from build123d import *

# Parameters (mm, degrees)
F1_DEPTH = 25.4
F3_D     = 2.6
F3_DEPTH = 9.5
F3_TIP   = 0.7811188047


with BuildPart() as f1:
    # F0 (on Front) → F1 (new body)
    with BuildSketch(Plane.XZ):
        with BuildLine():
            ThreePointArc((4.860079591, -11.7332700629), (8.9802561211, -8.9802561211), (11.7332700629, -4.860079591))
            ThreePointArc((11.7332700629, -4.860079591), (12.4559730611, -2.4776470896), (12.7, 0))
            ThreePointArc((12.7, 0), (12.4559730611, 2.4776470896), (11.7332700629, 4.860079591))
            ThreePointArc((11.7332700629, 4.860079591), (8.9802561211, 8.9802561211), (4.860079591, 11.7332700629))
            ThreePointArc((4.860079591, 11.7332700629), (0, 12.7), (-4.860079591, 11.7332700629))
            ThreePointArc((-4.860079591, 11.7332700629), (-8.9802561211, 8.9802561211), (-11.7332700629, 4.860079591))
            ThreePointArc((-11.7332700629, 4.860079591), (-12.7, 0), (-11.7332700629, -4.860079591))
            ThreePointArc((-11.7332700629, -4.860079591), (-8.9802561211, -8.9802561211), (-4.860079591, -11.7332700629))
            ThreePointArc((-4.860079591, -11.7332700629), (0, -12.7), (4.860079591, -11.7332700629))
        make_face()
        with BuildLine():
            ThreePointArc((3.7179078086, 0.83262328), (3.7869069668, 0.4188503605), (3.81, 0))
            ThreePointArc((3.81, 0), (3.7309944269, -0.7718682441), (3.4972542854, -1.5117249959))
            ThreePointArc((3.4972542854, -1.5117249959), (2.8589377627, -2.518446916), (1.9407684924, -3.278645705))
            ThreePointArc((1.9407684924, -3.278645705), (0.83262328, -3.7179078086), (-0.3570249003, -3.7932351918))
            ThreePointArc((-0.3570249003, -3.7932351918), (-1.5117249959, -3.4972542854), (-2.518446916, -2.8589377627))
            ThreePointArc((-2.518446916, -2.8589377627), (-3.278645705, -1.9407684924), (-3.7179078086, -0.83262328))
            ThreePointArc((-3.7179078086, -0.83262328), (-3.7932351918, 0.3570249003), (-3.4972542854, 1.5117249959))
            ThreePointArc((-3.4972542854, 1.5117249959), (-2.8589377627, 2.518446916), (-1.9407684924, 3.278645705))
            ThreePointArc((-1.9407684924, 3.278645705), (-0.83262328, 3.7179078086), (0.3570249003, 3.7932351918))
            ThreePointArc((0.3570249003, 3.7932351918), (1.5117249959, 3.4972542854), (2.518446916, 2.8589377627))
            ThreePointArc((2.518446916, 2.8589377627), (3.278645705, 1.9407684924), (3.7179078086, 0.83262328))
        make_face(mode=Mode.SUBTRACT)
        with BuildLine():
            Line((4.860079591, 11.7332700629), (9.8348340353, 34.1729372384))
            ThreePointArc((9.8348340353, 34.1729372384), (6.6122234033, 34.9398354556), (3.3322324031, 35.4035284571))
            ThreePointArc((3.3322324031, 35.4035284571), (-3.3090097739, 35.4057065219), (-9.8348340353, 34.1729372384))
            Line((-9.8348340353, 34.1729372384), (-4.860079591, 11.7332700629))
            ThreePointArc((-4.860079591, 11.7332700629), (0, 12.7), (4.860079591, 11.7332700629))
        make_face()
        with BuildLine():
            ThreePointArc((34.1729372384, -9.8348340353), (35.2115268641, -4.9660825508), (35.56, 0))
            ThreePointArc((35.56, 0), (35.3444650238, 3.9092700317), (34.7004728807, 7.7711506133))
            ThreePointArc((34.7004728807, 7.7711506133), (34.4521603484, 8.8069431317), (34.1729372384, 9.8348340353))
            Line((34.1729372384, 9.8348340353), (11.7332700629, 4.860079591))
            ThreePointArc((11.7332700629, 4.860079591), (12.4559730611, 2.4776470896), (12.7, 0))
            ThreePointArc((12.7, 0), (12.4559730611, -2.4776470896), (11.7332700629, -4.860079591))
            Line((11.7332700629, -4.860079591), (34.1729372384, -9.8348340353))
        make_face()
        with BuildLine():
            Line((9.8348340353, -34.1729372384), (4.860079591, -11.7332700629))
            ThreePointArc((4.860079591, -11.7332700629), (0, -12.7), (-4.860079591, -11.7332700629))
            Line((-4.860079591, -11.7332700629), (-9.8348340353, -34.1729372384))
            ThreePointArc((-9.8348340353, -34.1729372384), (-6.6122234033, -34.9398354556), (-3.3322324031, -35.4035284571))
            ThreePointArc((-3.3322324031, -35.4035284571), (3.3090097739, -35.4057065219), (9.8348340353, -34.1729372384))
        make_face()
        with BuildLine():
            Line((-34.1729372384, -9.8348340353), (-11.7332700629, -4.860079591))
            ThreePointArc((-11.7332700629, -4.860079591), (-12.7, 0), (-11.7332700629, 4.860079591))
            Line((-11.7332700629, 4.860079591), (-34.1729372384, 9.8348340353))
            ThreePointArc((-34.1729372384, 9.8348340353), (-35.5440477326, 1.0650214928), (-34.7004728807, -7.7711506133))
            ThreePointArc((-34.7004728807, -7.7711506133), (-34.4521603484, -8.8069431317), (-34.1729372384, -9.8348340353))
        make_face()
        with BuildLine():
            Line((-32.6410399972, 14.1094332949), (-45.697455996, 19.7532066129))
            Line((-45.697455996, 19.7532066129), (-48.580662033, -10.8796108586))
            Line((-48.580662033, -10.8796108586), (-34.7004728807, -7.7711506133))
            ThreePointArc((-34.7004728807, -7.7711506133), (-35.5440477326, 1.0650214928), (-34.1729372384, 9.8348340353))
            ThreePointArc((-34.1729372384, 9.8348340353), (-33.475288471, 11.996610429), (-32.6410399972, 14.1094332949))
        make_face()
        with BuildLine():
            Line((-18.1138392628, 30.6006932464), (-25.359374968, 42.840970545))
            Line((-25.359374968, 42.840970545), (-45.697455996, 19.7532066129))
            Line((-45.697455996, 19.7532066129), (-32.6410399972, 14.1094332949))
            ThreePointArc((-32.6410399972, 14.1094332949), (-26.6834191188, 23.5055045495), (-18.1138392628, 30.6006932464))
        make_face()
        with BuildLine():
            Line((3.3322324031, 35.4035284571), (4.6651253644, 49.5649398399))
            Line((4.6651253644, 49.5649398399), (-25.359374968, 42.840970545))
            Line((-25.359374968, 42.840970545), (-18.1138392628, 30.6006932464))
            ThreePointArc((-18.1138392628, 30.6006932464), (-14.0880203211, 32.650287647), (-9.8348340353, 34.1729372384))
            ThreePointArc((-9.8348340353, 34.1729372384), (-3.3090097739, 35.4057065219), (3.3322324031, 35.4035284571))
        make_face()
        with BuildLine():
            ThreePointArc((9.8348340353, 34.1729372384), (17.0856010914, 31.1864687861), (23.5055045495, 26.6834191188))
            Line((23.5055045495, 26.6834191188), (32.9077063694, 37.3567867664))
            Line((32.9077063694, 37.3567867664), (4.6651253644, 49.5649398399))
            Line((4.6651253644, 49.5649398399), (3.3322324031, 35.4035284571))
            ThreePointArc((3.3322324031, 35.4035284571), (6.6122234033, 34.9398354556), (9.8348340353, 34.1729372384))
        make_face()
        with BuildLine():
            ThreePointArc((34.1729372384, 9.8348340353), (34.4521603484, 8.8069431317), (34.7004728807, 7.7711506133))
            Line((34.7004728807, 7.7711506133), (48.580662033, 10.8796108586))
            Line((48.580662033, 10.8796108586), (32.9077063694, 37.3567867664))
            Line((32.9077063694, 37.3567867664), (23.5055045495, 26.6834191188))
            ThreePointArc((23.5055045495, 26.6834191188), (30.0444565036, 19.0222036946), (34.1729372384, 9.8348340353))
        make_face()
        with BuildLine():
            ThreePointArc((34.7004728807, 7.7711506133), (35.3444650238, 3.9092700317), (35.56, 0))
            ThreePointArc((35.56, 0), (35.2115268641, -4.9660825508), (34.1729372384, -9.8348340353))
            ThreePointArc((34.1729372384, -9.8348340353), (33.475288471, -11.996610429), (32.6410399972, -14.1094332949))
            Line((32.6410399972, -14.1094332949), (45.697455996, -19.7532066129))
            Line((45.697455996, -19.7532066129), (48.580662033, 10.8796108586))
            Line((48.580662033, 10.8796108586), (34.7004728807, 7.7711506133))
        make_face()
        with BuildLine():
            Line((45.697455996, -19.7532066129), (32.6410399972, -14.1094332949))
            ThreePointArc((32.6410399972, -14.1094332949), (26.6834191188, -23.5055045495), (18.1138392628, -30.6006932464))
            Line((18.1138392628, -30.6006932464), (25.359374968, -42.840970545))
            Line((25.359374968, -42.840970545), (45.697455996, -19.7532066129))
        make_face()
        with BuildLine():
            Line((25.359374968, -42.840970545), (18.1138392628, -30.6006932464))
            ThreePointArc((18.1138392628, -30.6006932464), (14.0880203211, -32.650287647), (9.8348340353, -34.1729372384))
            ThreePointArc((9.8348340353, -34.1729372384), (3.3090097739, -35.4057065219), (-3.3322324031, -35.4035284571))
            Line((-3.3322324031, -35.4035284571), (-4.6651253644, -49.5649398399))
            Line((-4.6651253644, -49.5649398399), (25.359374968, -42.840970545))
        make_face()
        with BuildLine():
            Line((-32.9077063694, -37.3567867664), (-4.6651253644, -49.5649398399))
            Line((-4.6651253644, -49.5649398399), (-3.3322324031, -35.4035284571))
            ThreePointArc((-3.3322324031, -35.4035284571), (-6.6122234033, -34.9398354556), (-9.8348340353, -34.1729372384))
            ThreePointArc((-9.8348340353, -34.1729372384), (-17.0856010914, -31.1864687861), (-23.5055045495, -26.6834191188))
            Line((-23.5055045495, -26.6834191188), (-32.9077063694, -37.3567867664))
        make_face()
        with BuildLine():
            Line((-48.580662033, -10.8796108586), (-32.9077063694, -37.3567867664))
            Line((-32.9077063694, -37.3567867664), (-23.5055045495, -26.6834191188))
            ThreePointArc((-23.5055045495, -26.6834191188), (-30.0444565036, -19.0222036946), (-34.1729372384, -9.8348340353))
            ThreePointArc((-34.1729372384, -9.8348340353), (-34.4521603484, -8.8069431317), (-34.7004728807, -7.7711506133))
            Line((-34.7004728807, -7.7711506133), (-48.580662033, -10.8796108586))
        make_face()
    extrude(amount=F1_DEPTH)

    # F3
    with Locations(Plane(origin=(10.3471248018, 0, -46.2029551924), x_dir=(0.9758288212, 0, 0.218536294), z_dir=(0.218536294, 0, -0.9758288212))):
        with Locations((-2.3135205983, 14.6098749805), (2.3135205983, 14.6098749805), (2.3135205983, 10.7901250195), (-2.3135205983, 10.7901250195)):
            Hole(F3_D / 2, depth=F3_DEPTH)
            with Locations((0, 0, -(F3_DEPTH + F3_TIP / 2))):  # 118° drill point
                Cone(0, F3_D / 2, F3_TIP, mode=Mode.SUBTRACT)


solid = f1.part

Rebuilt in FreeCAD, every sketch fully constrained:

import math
import FreeCAD as App
import Part
import Sketcher
from FreeCAD import Vector
Q = App.Units.Quantity


def add_polygon(sketch, points):
    """Adds a closed chain of lines whose ends are joined by coincident constraints."""
    first, n = sketch.GeometryCount, len(points)
    for a, b in zip(points, points[1:] + points[:1]):
        sketch.addGeometry(Part.LineSegment(App.Vector(*a, 0), App.Vector(*b, 0)), False)
    for i in range(n):
        sketch.addConstraint(Sketcher.Constraint("Coincident", first + i, 2, first + (i + 1) % n, 1))

doc = App.newDocument("Part")
params = doc.addObject("Spreadsheet::Sheet", "Params")
for row, (alias, value) in enumerate([
    ("sketch1_radius", "0.5 in"),
    ("sketch1_radius2", "1.4 in"),
    ("sketch1_radius3", "0.15 in"),
    ("pad1_length", "1 in"),
    ("hole_diameter", "2.6 mm"),
    ("hole_depth", "9.5 mm"),
], start=1):
    params.set(f"A{row}", alias)
    params.set(f"B{row}", "=" + value)
    params.setAlias(f"B{row}", alias)

body = doc.addObject("PartDesign::Body", "Body")

# Sketch on XZ plane
sketch1 = doc.addObject("Sketcher::SketchObject", "Sketch")
body.addObject(sketch1)
sketch1.AttachmentSupport = (doc.XZ_Plane, [""])
sketch1.MapMode = "FlatFace"
add_polygon(sketch1, [(25.4, -42.8), (45.7, -19.8), (48.6, 10.9), (32.9, 37.4), (4.7, 49.6), (-25.4, 42.8), (-45.7, 19.8), (-48.6, -10.9), (-32.9, -37.4), (-4.7, -49.6)])  # lines 0-9
sketch1.addGeometry(Part.ArcOfCircle(Part.Circle(Vector(0, 0, 0), Vector(0, 0, 1), 12.7), math.radians(-68), math.radians(-22)), False)  # 10
sketch1.addGeometry(Part.LineSegment(Vector(11.7, -4.9, 0), Vector(34.2, -9.8, 0)), False)  # 11
sketch1.addGeometry(Part.ArcOfCircle(Part.Circle(Vector(0, 0, 0), Vector(0, 0, 1), 35.6), math.radians(-23.38), math.radians(-16.06)), False)  # 12
sketch1.addGeometry(Part.ArcOfCircle(Part.Circle(Vector(0, 0, 0), Vector(0, 0, 1), 35.6), math.radians(-59), math.radians(-23)), False)  # 13
sketch1.addGeometry(Part.ArcOfCircle(Part.Circle(Vector(0, 0, 0), Vector(0, 0, 1), 35.6), math.radians(-73.94), math.radians(-59.38)), False)  # 14
sketch1.addGeometry(Part.LineSegment(Vector(9.8, -34.2, 0), Vector(4.9, -11.7, 0)), False)  # 15
sketch1.addGeometry(Part.LineSegment(Vector(-34.2, -9.8, 0), Vector(-11.7, -4.9, 0)), False)  # 16
sketch1.addGeometry(Part.ArcOfCircle(Part.Circle(Vector(0, 0, 0), Vector(0, 0, 1), 12.7), math.radians(-158), math.radians(-112)), False)  # 17
sketch1.addGeometry(Part.LineSegment(Vector(-4.9, -11.7, 0), Vector(-9.8, -34.2, 0)), False)  # 18
sketch1.addGeometry(Part.ArcOfCircle(Part.Circle(Vector(0, 0, 0), Vector(0, 0, 1), 35.6), math.radians(-131), math.radians(-106)), False)  # 19
sketch1.addGeometry(Part.ArcOfCircle(Part.Circle(Vector(0, 0, 0), Vector(0, 0, 1), 35.6), math.radians(-164), math.radians(-131)), False)  # 20
sketch1.addGeometry(Part.LineSegment(Vector(34.2, 9.8, 0), Vector(11.7, 4.9, 0)), False)  # 21
sketch1.addGeometry(Part.ArcOfCircle(Part.Circle(Vector(0, 0, 0), Vector(0, 0, 1), 12.7), math.radians(22), math.radians(68)), False)  # 22
sketch1.addGeometry(Part.LineSegment(Vector(4.9, 11.7, 0), Vector(9.8, 34.2, 0)), False)  # 23
sketch1.addGeometry(Part.ArcOfCircle(Part.Circle(Vector(0, 0, 0), Vector(0, 0, 1), 35.6), math.radians(49), math.radians(74)), False)  # 24
sketch1.addGeometry(Part.ArcOfCircle(Part.Circle(Vector(0, 0, 0), Vector(0, 0, 1), 35.6), math.radians(16), math.radians(49)), False)  # 25
sketch1.addGeometry(Part.LineSegment(Vector(-9.8, 34.2, 0), Vector(-4.9, 11.7, 0)), False)  # 26
sketch1.addGeometry(Part.ArcOfCircle(Part.Circle(Vector(0, 0, 0), Vector(0, 0, 1), 12.7), math.radians(112), math.radians(158)), False)  # 27
sketch1.addGeometry(Part.LineSegment(Vector(-11.7, 4.9, 0), Vector(-34.2, 9.8, 0)), False)  # 28
sketch1.addGeometry(Part.ArcOfCircle(Part.Circle(Vector(0, 0, 0), Vector(0, 0, 1), 35.6), math.radians(156.62), math.radians(163.94)), False)  # 29
sketch1.addGeometry(Part.ArcOfCircle(Part.Circle(Vector(0, 0, 0), Vector(0, 0, 1), 35.6), math.radians(121), math.radians(157)), False)  # 30
sketch1.addGeometry(Part.ArcOfCircle(Part.Circle(Vector(0, 0, 0), Vector(0, 0, 1), 35.6), math.radians(106.06), math.radians(120.62)), False)  # 31
sketch1.addGeometry(Part.ArcOfCircle(Part.Circle(Vector(0, 0, 0), Vector(0, 0, 1), 3.8), math.radians(13), math.radians(49)), False)  # 32
sketch1.addGeometry(Part.ArcOfCircle(Part.Circle(Vector(0, 0, 0), Vector(0, 0, 1), 3.8), math.radians(0), math.radians(12.62)), False)  # 33
sketch1.addGeometry(Part.ArcOfCircle(Part.Circle(Vector(0, 0, 0), Vector(0, 0, 1), 3.8), math.radians(-23), math.radians(0)), False)  # 34
sketch1.addGeometry(Part.ArcOfCircle(Part.Circle(Vector(0, 0, 0), Vector(0, 0, 1), 3.8), math.radians(-59), math.radians(-23)), False)  # 35
sketch1.addGeometry(Part.ArcOfCircle(Part.Circle(Vector(0, 0, 0), Vector(0, 0, 1), 3.8), math.radians(-95), math.radians(-59)), False)  # 36
sketch1.addGeometry(Part.ArcOfCircle(Part.Circle(Vector(0, 0, 0), Vector(0, 0, 1), 3.8), math.radians(-131), math.radians(-95)), False)  # 37
sketch1.addGeometry(Part.ArcOfCircle(Part.Circle(Vector(0, 0, 0), Vector(0, 0, 1), 3.8), math.radians(-167), math.radians(-131)), False)  # 38
sketch1.addGeometry(Part.ArcOfCircle(Part.Circle(Vector(0, 0, 0), Vector(0, 0, 1), 3.8), math.radians(157), math.radians(193)), False)  # 39
sketch1.addGeometry(Part.ArcOfCircle(Part.Circle(Vector(0, 0, 0), Vector(0, 0, 1), 3.8), math.radians(121), math.radians(157)), False)  # 40
sketch1.addGeometry(Part.ArcOfCircle(Part.Circle(Vector(0, 0, 0), Vector(0, 0, 1), 3.8), math.radians(85), math.radians(121)), False)  # 41
sketch1.addGeometry(Part.ArcOfCircle(Part.Circle(Vector(0, 0, 0), Vector(0, 0, 1), 3.8), math.radians(49), math.radians(85)), False)  # 42
sketch1.addConstraint([
    Sketcher.Constraint("Coincident", 10, 2, 11, 1),
    Sketcher.Constraint("Coincident", 11, 2, 12, 2),
    Sketcher.Constraint("Tangent", 12, 1, 13, 2),
    Sketcher.Constraint("Tangent", 13, 1, 14, 2),
    Sketcher.Constraint("Coincident", 14, 1, 15, 1),
    Sketcher.Constraint("Coincident", 15, 2, 10, 1),
    Sketcher.Constraint("Coincident", 16, 2, 17, 1),
    Sketcher.Constraint("Coincident", 17, 2, 18, 1),
    Sketcher.Constraint("Coincident", 18, 2, 19, 2),
    Sketcher.Constraint("Tangent", 19, 1, 20, 2),
    Sketcher.Constraint("Coincident", 20, 1, 16, 1),
    Sketcher.Constraint("Coincident", 21, 2, 22, 1),
    Sketcher.Constraint("Coincident", 22, 2, 23, 1),
    Sketcher.Constraint("Coincident", 23, 2, 24, 2),
    Sketcher.Constraint("Tangent", 24, 1, 25, 2),
    Sketcher.Constraint("Coincident", 25, 1, 21, 1),
    Sketcher.Constraint("Coincident", 26, 2, 27, 1),
    Sketcher.Constraint("Coincident", 27, 2, 28, 1),
    Sketcher.Constraint("Coincident", 28, 2, 29, 2),
    Sketcher.Constraint("Tangent", 29, 1, 30, 2),
    Sketcher.Constraint("Tangent", 30, 1, 31, 2),
    Sketcher.Constraint("Coincident", 31, 1, 26, 1),
    Sketcher.Constraint("Tangent", 32, 1, 33, 2),
    Sketcher.Constraint("Tangent", 33, 1, 34, 2),
    Sketcher.Constraint("Tangent", 34, 1, 35, 2),
    Sketcher.Constraint("Tangent", 35, 1, 36, 2),
    Sketcher.Constraint("Tangent", 36, 1, 37, 2),
    Sketcher.Constraint("Tangent", 37, 1, 38, 2),
    Sketcher.Constraint("Tangent", 38, 1, 39, 2),
    Sketcher.Constraint("Tangent", 39, 1, 40, 2),
    Sketcher.Constraint("Tangent", 40, 1, 41, 2),
    Sketcher.Constraint("Tangent", 41, 1, 42, 2),
    Sketcher.Constraint("Tangent", 42, 1, 32, 2),
    Sketcher.Constraint("Coincident", 10, 3, -1, 1),
    Sketcher.Constraint("Coincident", 12, 3, -1, 1),
    Sketcher.Constraint("Coincident", 14, 3, -1, 1),
    Sketcher.Constraint("Coincident", 17, 3, -1, 1),
    Sketcher.Constraint("Coincident", 19, 3, -1, 1),
    Sketcher.Constraint("Coincident", 22, 3, -1, 1),
    Sketcher.Constraint("Coincident", 24, 3, -1, 1),
    Sketcher.Constraint("Coincident", 27, 3, -1, 1),
    Sketcher.Constraint("Coincident", 29, 3, -1, 1),
    Sketcher.Constraint("Coincident", 31, 3, -1, 1),
    Sketcher.Constraint("Coincident", 32, 3, -1, 1),
    Sketcher.Constraint("Coincident", 34, 3, -1, 1),
    Sketcher.Constraint("Coincident", 36, 3, -1, 1),
    Sketcher.Constraint("Coincident", 38, 3, -1, 1),
    Sketcher.Constraint("Coincident", 40, 3, -1, 1),
    Sketcher.Constraint("Equal", 10, 17),
    Sketcher.Constraint("Equal", 14, 19),
    Sketcher.Constraint("Equal", 19, 20),
    Sketcher.Constraint("Equal", 17, 22),
    Sketcher.Constraint("Equal", 20, 24),
    Sketcher.Constraint("Equal", 24, 25),
    Sketcher.Constraint("Equal", 22, 27),
    Sketcher.Constraint("Equal", 25, 29),
    Sketcher.Constraint("Symmetric", 0, 2, 5, 2, -1, 1),
    Sketcher.Constraint("Symmetric", 1, 2, 6, 2, -1, 1),
    Sketcher.Constraint("Symmetric", 2, 2, 7, 2, -1, 1),
    Sketcher.Constraint("Symmetric", 3, 2, 8, 2, -1, 1),
    Sketcher.Constraint("Symmetric", 4, 2, 9, 2, -1, 1),
    Sketcher.Constraint("PointOnObject", 33, 1, -1),
    Sketcher.Constraint("Perpendicular", 15, 16),
    Sketcher.Constraint("Perpendicular", 11, 18),
    Sketcher.Constraint("Parallel", 16, 21),
    Sketcher.Constraint("Parallel", 18, 23),
    Sketcher.Constraint("Perpendicular", 21, 26),
    Sketcher.Constraint("Perpendicular", 23, 28),
    Sketcher.Constraint("Horizontal", 10, 2, 16, 2),
    Sketcher.Constraint("Horizontal", 15, 2, 17, 2),
    Sketcher.Constraint("Horizontal", 14, 1, 18, 2),
    Sketcher.Constraint("Horizontal", 22, 2, 26, 2),
    Sketcher.Constraint("Horizontal", 21, 2, 27, 2),
    Sketcher.Constraint("Vertical", 10, 2, 21, 2),
    Sketcher.Constraint("Vertical", 15, 2, 22, 2),
    Sketcher.Constraint("Equal", 0, 1),
    Sketcher.Constraint("Equal", 1, 2),
    Sketcher.Constraint("Equal", 2, 3),
    Sketcher.Constraint("Equal", 3, 4),
    Sketcher.Constraint("Equal", 11, 15),
    Sketcher.Constraint("Radius", 10, Q("0.5 in")),
    Sketcher.Constraint("Radius", 12, Q("1.4 in")),
    Sketcher.Constraint("Radius", 32, Q("0.15 in")),
    Sketcher.Constraint("Angle", 11, Q("-12.5 deg")),
    Sketcher.Constraint("Distance", 11, 22.984491),
    Sketcher.Constraint("DistanceY", -1, 1, 1, 2, 10.879611),
    Sketcher.Constraint("DistanceY", -1, 1, 3, 2, 49.56494),
    Sketcher.Constraint("DistanceY", -1, 1, 4, 2, 42.840971),
    Sketcher.Constraint("DistanceX", -1, 1, 12, 1, 32.64104),
    Sketcher.Constraint("DistanceX", -1, 1, 13, 1, 18.113839),
    Sketcher.Constraint("DistanceY", 19, 1, -1, 1, 26.683419),
    Sketcher.Constraint("DistanceY", -1, 1, 24, 1, 26.683419),
    Sketcher.Constraint("DistanceX", 29, 1, -1, 1, 32.64104),
    Sketcher.Constraint("DistanceX", 30, 1, -1, 1, 18.113839),
    Sketcher.Constraint("DistanceX", -1, 1, 35, 1, 1.940768),
    Sketcher.Constraint("DistanceX", 40, 1, -1, 1, 1.940768),
    Sketcher.Constraint("Distance", 0, 30.768204),
    Sketcher.Constraint("DistanceX", -1, 1, 0, 2, 45.697456),
    Sketcher.Constraint("DistanceY", 0, 2, -1, 1, 19.753207),
    Sketcher.Constraint("DistanceX", -1, 1, 32, 1, 3.717908),
    Sketcher.Constraint("DistanceX", -1, 1, 34, 1, 3.497254),
    Sketcher.Constraint("DistanceX", 36, 1, -1, 1, 0.357025),
    Sketcher.Constraint("DistanceX", 37, 1, -1, 1, 2.518447),
    Sketcher.Constraint("DistanceX", 38, 1, -1, 1, 3.717908),
    Sketcher.Constraint("DistanceX", 39, 1, -1, 1, 3.497254),
    Sketcher.Constraint("DistanceX", -1, 1, 41, 1, 0.357025),
    Sketcher.Constraint("DistanceX", -1, 1, 42, 1, 2.518447),
])
sketch1.setExpression("Constraints[90]", "Params.sketch1_radius")
sketch1.setExpression("Constraints[91]", "Params.sketch1_radius2")
sketch1.setExpression("Constraints[92]", "Params.sketch1_radius3")
pad1 = doc.addObject("PartDesign::Pad", "Pad")
body.addObject(pad1)
pad1.Profile = sketch1
pad1.setExpression("Length", "Params.pad1_length")

# Sketch on an angled plane
sketch2 = doc.addObject("Sketcher::SketchObject", "Sketch001")
body.addObject(sketch2)
sketch2.Placement = App.Placement(Vector(10.347125, 0, -46.202955), App.Rotation(Vector(0.975828821, 0, 0.218536294), Vector(0, -1, 0), Vector(0.218536294, 0, -0.975828821), "ZXY"))
sketch2.addGeometry([
    Part.Circle(Vector(-2.3, 14.6, 0), Vector(0, 0, 1), 1.3),
    Part.Circle(Vector(2.3, 14.6, 0), Vector(0, 0, 1), 1.3),
    Part.Circle(Vector(2.3, 10.8, 0), Vector(0, 0, 1), 1.3),
    Part.Circle(Vector(-2.3, 10.8, 0), Vector(0, 0, 1), 1.3),
], False)
sketch2.addConstraint([
    Sketcher.Constraint("Equal", 0, 1),
    Sketcher.Constraint("Equal", 1, 2),
    Sketcher.Constraint("Equal", 2, 3),
    Sketcher.Constraint("Symmetric", 0, 3, 1, 3, -2),
    Sketcher.Constraint("Symmetric", 2, 3, 3, 3, -2),
    Sketcher.Constraint("Vertical", 1, 3, 2, 3),
    Sketcher.Constraint("Diameter", 0, 2.6),
    Sketcher.Constraint("DistanceX", 0, 3, -1, 1, 2.313521),
    Sketcher.Constraint("DistanceY", 2, 3, 1, 3, 3.81975),
    Sketcher.Constraint("DistanceY", -1, 1, 0, 3, 14.609875),
])
doc.recompute()
hole = doc.addObject("PartDesign::Hole", "Hole")
body.addObject(hole)
hole.Profile = sketch2
hole.ThreadType = "None"
hole.setExpression("Diameter", "Params.hole_diameter")
hole.DepthType = "Dimension"
hole.setExpression("Depth", "Params.hole_depth")
hole.DrillPoint = "Angled"
hole.DrillPointAngle = 118

doc.recompute()
